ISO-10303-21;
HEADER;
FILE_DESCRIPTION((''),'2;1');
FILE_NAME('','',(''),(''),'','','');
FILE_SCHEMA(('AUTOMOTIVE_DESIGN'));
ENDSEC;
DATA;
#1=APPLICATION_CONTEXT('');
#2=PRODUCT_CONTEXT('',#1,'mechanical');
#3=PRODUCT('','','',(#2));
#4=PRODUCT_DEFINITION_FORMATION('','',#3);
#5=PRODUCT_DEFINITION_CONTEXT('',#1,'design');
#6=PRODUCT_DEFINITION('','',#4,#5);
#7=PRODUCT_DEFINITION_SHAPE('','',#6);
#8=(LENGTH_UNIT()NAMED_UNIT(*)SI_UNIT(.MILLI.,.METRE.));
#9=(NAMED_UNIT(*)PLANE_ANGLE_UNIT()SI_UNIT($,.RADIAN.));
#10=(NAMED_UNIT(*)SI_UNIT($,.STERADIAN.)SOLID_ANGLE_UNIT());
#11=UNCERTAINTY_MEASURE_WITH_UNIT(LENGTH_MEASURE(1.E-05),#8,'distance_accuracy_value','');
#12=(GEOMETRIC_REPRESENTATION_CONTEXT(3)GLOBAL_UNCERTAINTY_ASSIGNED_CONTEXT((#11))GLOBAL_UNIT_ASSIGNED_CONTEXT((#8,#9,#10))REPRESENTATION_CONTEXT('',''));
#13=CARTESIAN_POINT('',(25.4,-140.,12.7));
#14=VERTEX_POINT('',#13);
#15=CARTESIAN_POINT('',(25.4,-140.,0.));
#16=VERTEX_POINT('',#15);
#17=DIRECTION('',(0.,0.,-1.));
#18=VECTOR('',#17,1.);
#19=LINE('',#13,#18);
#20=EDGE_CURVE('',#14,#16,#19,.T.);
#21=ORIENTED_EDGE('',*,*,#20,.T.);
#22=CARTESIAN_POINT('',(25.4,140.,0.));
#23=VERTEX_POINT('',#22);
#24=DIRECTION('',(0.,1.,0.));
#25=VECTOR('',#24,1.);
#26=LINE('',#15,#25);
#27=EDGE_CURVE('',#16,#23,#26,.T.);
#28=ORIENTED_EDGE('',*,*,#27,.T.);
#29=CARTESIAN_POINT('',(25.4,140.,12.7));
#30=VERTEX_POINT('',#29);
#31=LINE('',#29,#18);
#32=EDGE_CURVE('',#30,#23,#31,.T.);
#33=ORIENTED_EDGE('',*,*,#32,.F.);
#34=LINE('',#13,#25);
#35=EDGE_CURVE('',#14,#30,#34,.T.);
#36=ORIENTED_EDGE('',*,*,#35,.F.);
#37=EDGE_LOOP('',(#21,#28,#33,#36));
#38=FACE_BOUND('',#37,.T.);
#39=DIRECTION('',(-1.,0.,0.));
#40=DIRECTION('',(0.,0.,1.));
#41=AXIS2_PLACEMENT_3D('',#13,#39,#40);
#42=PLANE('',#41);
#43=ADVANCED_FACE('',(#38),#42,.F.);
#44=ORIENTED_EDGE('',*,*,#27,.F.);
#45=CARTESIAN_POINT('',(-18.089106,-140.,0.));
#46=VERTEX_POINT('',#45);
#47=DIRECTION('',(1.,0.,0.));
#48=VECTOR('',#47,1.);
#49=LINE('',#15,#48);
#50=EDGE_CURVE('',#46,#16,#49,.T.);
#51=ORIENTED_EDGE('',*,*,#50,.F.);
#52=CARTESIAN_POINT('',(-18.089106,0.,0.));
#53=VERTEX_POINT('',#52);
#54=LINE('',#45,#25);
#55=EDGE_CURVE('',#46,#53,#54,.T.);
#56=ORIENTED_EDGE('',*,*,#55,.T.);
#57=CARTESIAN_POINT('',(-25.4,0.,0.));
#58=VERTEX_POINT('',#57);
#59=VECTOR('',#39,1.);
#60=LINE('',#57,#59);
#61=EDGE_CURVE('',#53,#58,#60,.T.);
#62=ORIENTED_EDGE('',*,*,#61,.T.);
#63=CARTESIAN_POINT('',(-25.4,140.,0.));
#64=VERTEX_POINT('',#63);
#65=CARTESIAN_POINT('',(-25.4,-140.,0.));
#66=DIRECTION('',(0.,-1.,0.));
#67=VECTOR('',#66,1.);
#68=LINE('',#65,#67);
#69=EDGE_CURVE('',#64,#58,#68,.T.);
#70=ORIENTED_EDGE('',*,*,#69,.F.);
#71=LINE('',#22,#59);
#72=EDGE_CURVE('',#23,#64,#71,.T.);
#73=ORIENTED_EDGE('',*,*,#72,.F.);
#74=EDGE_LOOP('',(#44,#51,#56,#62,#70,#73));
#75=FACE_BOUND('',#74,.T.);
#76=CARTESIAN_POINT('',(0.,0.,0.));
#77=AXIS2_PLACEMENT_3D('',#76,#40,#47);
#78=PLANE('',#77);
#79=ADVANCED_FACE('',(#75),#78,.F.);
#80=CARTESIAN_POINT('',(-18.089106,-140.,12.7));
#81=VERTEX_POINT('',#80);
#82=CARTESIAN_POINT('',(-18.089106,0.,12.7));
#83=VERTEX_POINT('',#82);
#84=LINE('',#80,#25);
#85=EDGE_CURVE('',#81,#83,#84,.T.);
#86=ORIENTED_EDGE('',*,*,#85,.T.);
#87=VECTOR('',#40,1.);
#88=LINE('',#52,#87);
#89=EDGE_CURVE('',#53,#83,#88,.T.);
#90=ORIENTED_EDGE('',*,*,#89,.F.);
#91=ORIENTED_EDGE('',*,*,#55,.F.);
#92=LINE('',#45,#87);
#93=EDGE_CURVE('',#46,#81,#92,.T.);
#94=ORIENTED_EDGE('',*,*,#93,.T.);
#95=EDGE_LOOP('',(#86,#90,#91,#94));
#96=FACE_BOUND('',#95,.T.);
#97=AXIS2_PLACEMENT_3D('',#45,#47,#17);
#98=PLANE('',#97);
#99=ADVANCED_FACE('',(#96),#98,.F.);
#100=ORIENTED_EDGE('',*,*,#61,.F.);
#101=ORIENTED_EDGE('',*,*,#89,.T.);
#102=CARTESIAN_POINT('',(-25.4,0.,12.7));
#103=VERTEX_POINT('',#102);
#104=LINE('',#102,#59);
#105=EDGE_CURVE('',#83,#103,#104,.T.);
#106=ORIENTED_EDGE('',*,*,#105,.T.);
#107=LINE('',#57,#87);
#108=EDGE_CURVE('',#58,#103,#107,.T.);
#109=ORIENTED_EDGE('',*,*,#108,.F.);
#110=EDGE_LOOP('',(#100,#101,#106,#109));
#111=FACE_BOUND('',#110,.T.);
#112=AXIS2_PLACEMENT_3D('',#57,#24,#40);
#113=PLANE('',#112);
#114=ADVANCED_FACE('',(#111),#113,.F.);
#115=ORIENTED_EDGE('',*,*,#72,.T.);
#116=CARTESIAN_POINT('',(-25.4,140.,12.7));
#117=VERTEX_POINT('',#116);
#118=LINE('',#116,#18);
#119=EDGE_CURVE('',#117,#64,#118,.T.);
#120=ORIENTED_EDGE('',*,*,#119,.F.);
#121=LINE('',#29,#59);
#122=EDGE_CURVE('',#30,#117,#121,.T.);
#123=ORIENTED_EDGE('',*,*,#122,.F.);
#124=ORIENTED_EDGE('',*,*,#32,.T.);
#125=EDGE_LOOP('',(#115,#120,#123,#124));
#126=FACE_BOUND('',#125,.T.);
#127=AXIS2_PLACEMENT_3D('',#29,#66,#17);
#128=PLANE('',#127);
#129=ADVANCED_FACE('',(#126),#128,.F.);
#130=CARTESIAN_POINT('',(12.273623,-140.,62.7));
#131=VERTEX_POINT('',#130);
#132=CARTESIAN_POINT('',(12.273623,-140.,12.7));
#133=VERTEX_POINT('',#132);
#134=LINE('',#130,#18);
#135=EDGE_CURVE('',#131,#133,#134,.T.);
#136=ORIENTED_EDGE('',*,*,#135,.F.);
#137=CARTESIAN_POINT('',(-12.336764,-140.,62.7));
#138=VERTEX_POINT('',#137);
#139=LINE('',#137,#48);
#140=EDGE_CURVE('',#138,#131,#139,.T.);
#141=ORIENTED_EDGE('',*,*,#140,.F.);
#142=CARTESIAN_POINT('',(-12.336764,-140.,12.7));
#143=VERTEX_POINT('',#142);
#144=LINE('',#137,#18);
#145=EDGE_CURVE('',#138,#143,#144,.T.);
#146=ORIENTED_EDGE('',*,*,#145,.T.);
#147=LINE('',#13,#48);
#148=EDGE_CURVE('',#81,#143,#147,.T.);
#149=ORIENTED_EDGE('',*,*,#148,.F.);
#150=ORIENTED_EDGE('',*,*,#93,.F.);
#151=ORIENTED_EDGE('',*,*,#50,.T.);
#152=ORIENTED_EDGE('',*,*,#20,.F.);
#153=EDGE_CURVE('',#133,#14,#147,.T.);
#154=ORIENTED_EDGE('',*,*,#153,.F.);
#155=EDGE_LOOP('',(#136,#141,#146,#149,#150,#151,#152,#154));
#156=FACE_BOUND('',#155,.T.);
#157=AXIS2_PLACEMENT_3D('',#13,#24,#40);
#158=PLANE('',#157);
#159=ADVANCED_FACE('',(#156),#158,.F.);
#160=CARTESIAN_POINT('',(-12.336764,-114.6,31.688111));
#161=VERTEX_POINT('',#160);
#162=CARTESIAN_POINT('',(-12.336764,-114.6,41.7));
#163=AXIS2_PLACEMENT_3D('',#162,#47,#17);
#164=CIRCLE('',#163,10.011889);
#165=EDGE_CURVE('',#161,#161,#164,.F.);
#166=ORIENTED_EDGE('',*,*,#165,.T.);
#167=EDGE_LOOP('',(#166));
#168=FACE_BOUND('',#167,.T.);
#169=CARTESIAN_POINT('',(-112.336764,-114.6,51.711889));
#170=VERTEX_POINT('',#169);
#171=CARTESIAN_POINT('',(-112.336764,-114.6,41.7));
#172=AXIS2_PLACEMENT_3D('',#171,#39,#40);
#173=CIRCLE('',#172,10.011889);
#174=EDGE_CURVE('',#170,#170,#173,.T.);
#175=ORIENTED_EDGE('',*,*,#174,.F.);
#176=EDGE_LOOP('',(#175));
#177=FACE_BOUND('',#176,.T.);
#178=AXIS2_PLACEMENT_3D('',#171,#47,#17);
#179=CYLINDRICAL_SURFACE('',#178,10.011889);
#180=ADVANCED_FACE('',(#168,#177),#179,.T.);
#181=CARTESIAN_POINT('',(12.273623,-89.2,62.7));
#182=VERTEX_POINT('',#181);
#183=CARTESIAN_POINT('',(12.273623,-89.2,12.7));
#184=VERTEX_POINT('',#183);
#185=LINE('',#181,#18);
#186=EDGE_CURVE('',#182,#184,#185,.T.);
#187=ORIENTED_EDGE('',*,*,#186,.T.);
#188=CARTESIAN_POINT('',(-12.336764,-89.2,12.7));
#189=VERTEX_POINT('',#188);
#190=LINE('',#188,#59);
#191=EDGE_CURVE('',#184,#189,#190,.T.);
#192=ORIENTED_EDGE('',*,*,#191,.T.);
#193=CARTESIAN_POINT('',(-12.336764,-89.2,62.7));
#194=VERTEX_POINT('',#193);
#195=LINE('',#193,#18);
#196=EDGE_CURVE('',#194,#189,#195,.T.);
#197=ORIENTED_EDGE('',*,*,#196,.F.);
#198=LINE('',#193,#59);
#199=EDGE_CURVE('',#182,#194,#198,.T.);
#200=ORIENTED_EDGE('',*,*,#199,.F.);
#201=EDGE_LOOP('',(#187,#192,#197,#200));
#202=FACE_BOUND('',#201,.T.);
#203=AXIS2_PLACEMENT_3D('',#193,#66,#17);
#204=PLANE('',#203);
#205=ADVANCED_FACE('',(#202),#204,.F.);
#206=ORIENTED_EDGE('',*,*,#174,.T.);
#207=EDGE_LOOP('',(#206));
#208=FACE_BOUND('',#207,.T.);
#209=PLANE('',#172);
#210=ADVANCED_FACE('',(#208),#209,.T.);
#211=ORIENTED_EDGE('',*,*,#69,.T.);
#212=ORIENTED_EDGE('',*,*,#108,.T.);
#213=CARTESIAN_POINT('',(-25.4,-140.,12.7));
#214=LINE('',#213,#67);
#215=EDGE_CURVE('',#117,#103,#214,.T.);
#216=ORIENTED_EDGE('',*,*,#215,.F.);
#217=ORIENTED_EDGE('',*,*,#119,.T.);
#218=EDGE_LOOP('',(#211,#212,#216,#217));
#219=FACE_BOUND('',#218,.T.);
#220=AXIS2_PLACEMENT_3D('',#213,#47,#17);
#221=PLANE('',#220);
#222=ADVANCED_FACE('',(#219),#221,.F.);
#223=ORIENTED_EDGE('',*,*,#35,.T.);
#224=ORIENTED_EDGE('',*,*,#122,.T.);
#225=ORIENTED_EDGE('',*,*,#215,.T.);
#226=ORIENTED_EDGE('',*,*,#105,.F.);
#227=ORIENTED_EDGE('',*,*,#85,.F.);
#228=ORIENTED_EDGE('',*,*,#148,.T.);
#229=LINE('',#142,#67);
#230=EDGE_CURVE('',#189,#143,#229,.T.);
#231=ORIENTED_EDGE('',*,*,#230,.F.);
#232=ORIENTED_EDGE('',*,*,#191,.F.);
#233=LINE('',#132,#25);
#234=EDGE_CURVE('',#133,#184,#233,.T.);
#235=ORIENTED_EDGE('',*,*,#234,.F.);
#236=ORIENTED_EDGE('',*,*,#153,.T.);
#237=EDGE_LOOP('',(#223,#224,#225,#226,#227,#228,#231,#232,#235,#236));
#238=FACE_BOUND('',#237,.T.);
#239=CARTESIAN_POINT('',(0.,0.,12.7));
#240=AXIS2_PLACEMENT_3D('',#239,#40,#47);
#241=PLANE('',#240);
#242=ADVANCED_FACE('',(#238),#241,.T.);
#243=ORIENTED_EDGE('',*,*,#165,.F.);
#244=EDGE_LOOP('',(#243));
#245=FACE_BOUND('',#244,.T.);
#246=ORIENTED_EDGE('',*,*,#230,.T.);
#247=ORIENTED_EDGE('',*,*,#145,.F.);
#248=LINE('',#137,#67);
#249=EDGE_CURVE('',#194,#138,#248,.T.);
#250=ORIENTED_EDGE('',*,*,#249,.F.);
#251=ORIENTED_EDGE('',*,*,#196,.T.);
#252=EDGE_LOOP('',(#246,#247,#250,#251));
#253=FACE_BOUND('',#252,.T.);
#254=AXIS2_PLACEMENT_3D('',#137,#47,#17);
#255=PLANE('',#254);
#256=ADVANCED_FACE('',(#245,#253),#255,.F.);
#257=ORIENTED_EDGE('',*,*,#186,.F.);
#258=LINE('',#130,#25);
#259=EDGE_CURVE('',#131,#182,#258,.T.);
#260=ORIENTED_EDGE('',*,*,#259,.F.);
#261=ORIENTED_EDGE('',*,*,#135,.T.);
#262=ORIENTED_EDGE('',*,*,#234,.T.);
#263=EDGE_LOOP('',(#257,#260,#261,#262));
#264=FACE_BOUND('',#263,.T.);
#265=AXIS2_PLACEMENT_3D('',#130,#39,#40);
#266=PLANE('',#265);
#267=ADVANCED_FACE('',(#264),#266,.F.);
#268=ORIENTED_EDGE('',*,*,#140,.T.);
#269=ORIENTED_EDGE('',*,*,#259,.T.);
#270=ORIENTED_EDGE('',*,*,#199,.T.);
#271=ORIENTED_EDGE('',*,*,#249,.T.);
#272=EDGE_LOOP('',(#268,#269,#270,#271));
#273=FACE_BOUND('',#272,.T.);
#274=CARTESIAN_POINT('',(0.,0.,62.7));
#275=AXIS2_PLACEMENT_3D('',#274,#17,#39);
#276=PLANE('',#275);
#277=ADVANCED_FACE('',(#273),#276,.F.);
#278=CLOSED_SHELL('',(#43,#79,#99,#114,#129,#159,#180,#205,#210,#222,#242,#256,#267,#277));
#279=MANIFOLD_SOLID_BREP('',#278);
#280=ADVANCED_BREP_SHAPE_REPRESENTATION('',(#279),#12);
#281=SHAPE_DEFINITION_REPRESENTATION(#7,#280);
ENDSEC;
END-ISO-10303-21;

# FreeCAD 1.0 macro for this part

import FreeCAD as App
import Part
import Sketcher
from FreeCAD import Vector
Q = App.Units.Quantity


def add_polygon(sketch, points):
    """Adds a closed chain of lines whose ends are joined by coincident constraints."""
    first, n = sketch.GeometryCount, len(points)
    for a, b in zip(points, points[1:] + points[:1]):
        sketch.addGeometry(Part.LineSegment(App.Vector(*a, 0), App.Vector(*b, 0)), False)
    for i in range(n):
        sketch.addConstraint(Sketcher.Constraint("Coincident", first + i, 2, first + (i + 1) % n, 1))

doc = App.newDocument("Part")
body = doc.addObject("PartDesign::Body", "Body")

sketch1 = doc.addObject("Sketcher::SketchObject", "Sketch")
body.addObject(sketch1)
sketch1.AttachmentSupport = (doc.XY_Plane, [""])
sketch1.MapMode = "FlatFace"
add_polygon(sketch1, [(-25, 140), (-25, -140), (25, -140), (25, 140)])
sketch1.addConstraint([
    Sketcher.Constraint("Vertical", 0),
    Sketcher.Constraint("Horizontal", 1),
    Sketcher.Constraint("Vertical", 2),
    Sketcher.Constraint("Horizontal", 3),
    Sketcher.Constraint("Symmetric", 0, 2, 2, 2, -1, 1),
    Sketcher.Constraint("DistanceY", 0, 2, 0, 1, Q("280 mm")),
    Sketcher.Constraint("DistanceX", 1, 1, 1, 2, Q("50.8 mm")),
])
pad1 = doc.addObject("PartDesign::Pad", "Pad")
body.addObject(pad1)
pad1.Profile = sketch1
pad1.Length = 12.7

sketch2 = doc.addObject("Sketcher::SketchObject", "Sketch001")
body.addObject(sketch2)
sketch2.AttachmentSupport = (doc.XY_Plane, [""])
sketch2.MapMode = "FlatFace"
sketch2.AttachmentOffset = App.Placement(Vector(0, 0, 12.7), App.Rotation())
add_polygon(sketch2, [(-12, -89), (-12, -140), (12, -140), (12, -89)])
sketch2.addConstraint([
    Sketcher.Constraint("Vertical", 0),
    Sketcher.Constraint("Horizontal", 1),
    Sketcher.Constraint("Vertical", 2),
    Sketcher.Constraint("Horizontal", 3),
    Sketcher.Constraint("DistanceY", 0, 2, 0, 1, Q("50.8 mm")),
    Sketcher.Constraint("DistanceY", 0, 2, -1, 1, Q("140 mm")),
    Sketcher.Constraint("DistanceX", 1, 1, 1, 2, Q("24.610387 mm")),
    Sketcher.Constraint("DistanceX", 0, 2, -1, 1, Q("12.336764 mm")),
])
pad2 = doc.addObject("PartDesign::Pad", "Pad001")
body.addObject(pad2)
pad2.Profile = sketch2
pad2.Length = 50

sketch3 = doc.addObject("Sketcher::SketchObject", "Sketch002")
body.addObject(sketch3)
sketch3.AttachmentSupport = (doc.YZ_Plane, [""])
sketch3.MapMode = "FlatFace"
sketch3.AttachmentOffset = App.Placement(Vector(0, 0, -12.336764), App.Rotation())
sketch3.addGeometry(Part.Circle(Vector(-115, 42, 0), Vector(0, 0, 1), 10), False)
sketch3.addConstraint([
    Sketcher.Constraint("DistanceX", 0, 3, -1, 1, Q("114.6 mm")),
    Sketcher.Constraint("DistanceY", -1, 1, 0, 3, Q("41.7 mm")),
    Sketcher.Constraint("Diameter", 0, Q("20.023779 mm")),
])
pad3 = doc.addObject("PartDesign::Pad", "Pad002")
body.addObject(pad3)
pad3.Profile = sketch3
pad3.Length = 100
pad3.Reversed = True

sketch4 = doc.addObject("Sketcher::SketchObject", "Sketch003")
body.addObject(sketch4)
sketch4.AttachmentSupport = (doc.XY_Plane, [""])
sketch4.MapMode = "FlatFace"
sketch4.AttachmentOffset = App.Placement(Vector(0, 0, 12.7), App.Rotation())
add_polygon(sketch4, [(-25, 0), (-25, -140), (-18, -140), (-18, 0)])
sketch4.addConstraint([
    Sketcher.Constraint("Vertical", 0),
    Sketcher.Constraint("Horizontal", 1),
    Sketcher.Constraint("Vertical", 2),
    Sketcher.Constraint("Horizontal", 3),
    Sketcher.Constraint("PointOnObject", 2, 2, -1),
    Sketcher.Constraint("DistanceY", 0, 2, 0, 1, Q("140 mm")),
    Sketcher.Constraint("DistanceX", 0, 2, -1, 1, Q("25.4 mm")),
    Sketcher.Constraint("DistanceX", 1, 1, 1, 2, Q("7.310894 mm")),
])
pocket1 = doc.addObject("PartDesign::Pocket", "Pocket")
body.addObject(pocket1)
pocket1.Profile = sketch4
pocket1.Type = "ThroughAll"

doc.recompute()
